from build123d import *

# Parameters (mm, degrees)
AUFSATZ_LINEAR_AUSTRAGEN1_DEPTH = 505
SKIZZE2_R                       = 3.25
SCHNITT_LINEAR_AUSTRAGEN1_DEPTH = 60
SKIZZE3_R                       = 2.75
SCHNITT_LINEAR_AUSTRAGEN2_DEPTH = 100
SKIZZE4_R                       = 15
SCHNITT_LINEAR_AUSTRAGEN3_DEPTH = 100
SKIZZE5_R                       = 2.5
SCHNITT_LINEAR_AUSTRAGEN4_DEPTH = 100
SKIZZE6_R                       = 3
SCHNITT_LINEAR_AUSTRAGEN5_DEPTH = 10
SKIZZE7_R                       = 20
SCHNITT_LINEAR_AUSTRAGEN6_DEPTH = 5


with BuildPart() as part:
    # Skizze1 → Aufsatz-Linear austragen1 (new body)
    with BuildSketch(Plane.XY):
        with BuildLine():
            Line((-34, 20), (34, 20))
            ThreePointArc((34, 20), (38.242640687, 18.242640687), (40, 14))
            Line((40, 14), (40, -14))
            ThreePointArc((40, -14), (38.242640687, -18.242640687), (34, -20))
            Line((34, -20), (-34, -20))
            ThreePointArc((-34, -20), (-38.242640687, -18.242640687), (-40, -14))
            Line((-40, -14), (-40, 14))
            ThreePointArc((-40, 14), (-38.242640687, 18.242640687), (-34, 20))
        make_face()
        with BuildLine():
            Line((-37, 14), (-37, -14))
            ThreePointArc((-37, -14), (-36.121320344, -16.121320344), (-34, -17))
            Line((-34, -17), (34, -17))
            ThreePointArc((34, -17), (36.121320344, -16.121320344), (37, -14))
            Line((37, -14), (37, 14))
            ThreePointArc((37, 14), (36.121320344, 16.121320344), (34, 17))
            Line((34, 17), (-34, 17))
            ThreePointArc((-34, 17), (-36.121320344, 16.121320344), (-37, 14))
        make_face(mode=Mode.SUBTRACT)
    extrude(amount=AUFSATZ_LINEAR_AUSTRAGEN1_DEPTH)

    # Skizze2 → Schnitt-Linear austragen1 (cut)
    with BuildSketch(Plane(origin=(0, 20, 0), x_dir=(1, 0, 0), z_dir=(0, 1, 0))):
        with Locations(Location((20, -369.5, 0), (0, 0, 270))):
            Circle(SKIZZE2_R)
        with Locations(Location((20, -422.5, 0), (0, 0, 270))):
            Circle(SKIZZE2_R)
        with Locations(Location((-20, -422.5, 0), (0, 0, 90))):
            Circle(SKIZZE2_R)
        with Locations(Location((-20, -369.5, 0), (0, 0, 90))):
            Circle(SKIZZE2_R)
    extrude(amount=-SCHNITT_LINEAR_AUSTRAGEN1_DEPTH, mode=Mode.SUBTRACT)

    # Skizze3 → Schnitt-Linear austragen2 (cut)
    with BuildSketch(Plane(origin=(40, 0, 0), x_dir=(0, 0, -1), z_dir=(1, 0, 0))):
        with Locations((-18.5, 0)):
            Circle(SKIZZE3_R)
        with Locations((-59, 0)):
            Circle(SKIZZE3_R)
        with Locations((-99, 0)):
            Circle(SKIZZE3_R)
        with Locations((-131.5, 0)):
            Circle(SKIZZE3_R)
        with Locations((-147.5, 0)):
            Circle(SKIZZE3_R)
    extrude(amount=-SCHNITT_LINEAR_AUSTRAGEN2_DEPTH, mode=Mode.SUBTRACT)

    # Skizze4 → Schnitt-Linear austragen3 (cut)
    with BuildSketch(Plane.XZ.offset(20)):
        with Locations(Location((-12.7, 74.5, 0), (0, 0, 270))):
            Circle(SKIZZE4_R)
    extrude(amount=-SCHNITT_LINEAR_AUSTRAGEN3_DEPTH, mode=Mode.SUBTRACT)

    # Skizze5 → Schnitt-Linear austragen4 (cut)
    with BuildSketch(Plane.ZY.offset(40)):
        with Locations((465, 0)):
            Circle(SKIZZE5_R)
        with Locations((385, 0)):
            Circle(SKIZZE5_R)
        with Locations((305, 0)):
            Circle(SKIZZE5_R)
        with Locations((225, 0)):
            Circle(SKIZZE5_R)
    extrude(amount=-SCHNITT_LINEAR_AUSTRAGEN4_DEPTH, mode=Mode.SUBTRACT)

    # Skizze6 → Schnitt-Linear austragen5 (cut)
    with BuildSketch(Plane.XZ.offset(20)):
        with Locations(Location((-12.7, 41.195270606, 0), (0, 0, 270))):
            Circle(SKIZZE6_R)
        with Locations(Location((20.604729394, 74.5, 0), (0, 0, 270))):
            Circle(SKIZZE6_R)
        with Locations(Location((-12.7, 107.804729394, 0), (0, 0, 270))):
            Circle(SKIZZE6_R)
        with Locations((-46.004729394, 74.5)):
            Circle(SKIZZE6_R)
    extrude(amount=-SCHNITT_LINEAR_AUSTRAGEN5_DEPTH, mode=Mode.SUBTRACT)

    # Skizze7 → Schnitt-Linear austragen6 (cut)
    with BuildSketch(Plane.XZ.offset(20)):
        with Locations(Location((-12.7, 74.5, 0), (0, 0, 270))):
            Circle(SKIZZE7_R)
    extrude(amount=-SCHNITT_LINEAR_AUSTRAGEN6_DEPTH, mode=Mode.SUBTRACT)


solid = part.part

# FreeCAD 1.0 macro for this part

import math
import FreeCAD as App
import Part
import Sketcher

V = App.Vector

doc = App.newDocument("Part")
body = doc.addObject("PartDesign::Body", "Body")

# Sketch on XY plane
sketch1 = body.newObject("Sketcher::SketchObject", "Sketch")
sketch1.AttachmentSupport = (doc.getObject("XY_Plane"), [""])
sketch1.MapMode = "FlatFace"
sketch1.addGeometry([
    Part.LineSegment(V(34, 20, 0), V(-34, 20, 0)),  # 0
    Part.ArcOfCircle(Part.Circle(V(-34, 14, 0), V(0, 0, 1), 6), math.radians(90), math.radians(180)),  # 1
    Part.LineSegment(V(-40, 14, 0), V(-40, -14, 0)),  # 2
    Part.ArcOfCircle(Part.Circle(V(-34, -14, 0), V(0, 0, 1), 6), math.radians(180), math.radians(270)),  # 3
    Part.LineSegment(V(-34, -20, 0), V(34, -20, 0)),  # 4
    Part.ArcOfCircle(Part.Circle(V(34, -14, 0), V(0, 0, 1), 6), math.radians(-90), math.radians(0)),  # 5
    Part.LineSegment(V(40, -14, 0), V(40, 14, 0)),  # 6
    Part.ArcOfCircle(Part.Circle(V(34, 14, 0), V(0, 0, 1), 6), math.radians(0), math.radians(90)),  # 7
    Part.ArcOfCircle(Part.Circle(V(-34, 14, 0), V(0, 0, 1), 3), math.radians(90), math.radians(180)),  # 8
    Part.LineSegment(V(-34, 17, 0), V(34, 17, 0)),  # 9
    Part.ArcOfCircle(Part.Circle(V(34, 14, 0), V(0, 0, 1), 3), math.radians(0), math.radians(90)),  # 10
    Part.LineSegment(V(37, 14, 0), V(37, -14, 0)),  # 11
    Part.ArcOfCircle(Part.Circle(V(34, -14, 0), V(0, 0, 1), 3), math.radians(-90), math.radians(0)),  # 12
    Part.LineSegment(V(34, -17, 0), V(-34, -17, 0)),  # 13
    Part.ArcOfCircle(Part.Circle(V(-34, -14, 0), V(0, 0, 1), 3), math.radians(180), math.radians(270)),  # 14
    Part.LineSegment(V(-37, -14, 0), V(-37, 14, 0)),  # 15
], False)
sketch1.addConstraint([
    Sketcher.Constraint("Tangent", 0, 2, 1, 1),
    Sketcher.Constraint("Tangent", 1, 2, 2, 1),
    Sketcher.Constraint("Tangent", 2, 2, 3, 1),
    Sketcher.Constraint("Tangent", 3, 2, 4, 1),
    Sketcher.Constraint("Tangent", 4, 2, 5, 1),
    Sketcher.Constraint("Tangent", 5, 2, 6, 1),
    Sketcher.Constraint("Tangent", 6, 2, 7, 1),
    Sketcher.Constraint("Tangent", 7, 2, 0, 1),
    Sketcher.Constraint("Tangent", 8, 1, 9, 1),
    Sketcher.Constraint("Tangent", 9, 2, 10, 2),
    Sketcher.Constraint("Tangent", 10, 1, 11, 1),
    Sketcher.Constraint("Tangent", 11, 2, 12, 2),
    Sketcher.Constraint("Tangent", 12, 1, 13, 1),
    Sketcher.Constraint("Tangent", 13, 2, 14, 2),
    Sketcher.Constraint("Tangent", 14, 1, 15, 1),
    Sketcher.Constraint("Tangent", 15, 2, 8, 2),
    Sketcher.Constraint("Horizontal", 0),
    Sketcher.Constraint("Vertical", 2),
    Sketcher.Constraint("Horizontal", 4),
    Sketcher.Constraint("Vertical", 6),
    Sketcher.Constraint("Horizontal", 9),
    Sketcher.Constraint("Vertical", 11),
    Sketcher.Constraint("Horizontal", 13),
    Sketcher.Constraint("Vertical", 15),
    Sketcher.Constraint("Coincident", 8, 3, 1, 3),
    Sketcher.Constraint("Coincident", 10, 3, 7, 3),
    Sketcher.Constraint("Coincident", 12, 3, 5, 3),
    Sketcher.Constraint("Equal", 1, 3),
    Sketcher.Constraint("Equal", 3, 5),
    Sketcher.Constraint("Equal", 5, 7),
    Sketcher.Constraint("Equal", 12, 14),
    Sketcher.Constraint("Symmetric", 1, 3, 5, 3, -1, 1),
    Sketcher.Constraint("Radius", 1, 6.0),
    Sketcher.Constraint("Radius", 8, 3.0),
    Sketcher.Constraint("DistanceX", 0, 2, 0, 1, 68.0),
    Sketcher.Constraint("DistanceY", 2, 2, 2, 1, 28.0),
])
pad1 = body.newObject("PartDesign::Pad", "Pad")
pad1.Profile = sketch1
pad1.Length = 505

# Sketch on XZ plane
sketch2 = body.newObject("Sketcher::SketchObject", "Sketch001")
sketch2.AttachmentSupport = (doc.getObject("XZ_Plane"), [""])
sketch2.MapMode = "FlatFace"
sketch2.AttachmentOffset = App.Placement(V(0, 0, -20), App.Rotation())
sketch2.addGeometry([
    Part.Circle(V(20, 369.5, 0), V(0, 0, 1), 3.2),
    Part.Circle(V(20, 422.5, 0), V(0, 0, 1), 3.2),
    Part.Circle(V(-20, 422.5, 0), V(0, 0, 1), 3.2),
    Part.Circle(V(-20, 369.5, 0), V(0, 0, 1), 3.2),
], False)
sketch2.addConstraint([
    Sketcher.Constraint("Equal", 0, 1),
    Sketcher.Constraint("Equal", 1, 2),
    Sketcher.Constraint("Equal", 2, 3),
    Sketcher.Constraint("Symmetric", 1, 3, 2, 3, -2),
    Sketcher.Constraint("Symmetric", 0, 3, 3, 3, -2),
    Sketcher.Constraint("Vertical", 0, 3, 1, 3),
    Sketcher.Constraint("Diameter", 0, 6.5),
    Sketcher.Constraint("DistanceX", -1, 1, 0, 3, 20.0),
    Sketcher.Constraint("DistanceY", 0, 3, 1, 3, 53.0),
    Sketcher.Constraint("DistanceY", -1, 1, 0, 3, 369.5),
])
pocket1 = body.newObject("PartDesign::Pocket", "Pocket")
pocket1.Profile = sketch2
pocket1.Length = 60
pocket1.Reversed = True

# Sketch on YZ plane
sketch3 = body.newObject("Sketcher::SketchObject", "Sketch002")
sketch3.AttachmentSupport = (doc.getObject("YZ_Plane"), [""])
sketch3.MapMode = "FlatFace"
sketch3.AttachmentOffset = App.Placement(V(0, 0, 40), App.Rotation())
sketch3.addGeometry([
    Part.Circle(V(0, 18.5, 0), V(0, 0, 1), 2.8),  # 0
    Part.Circle(V(0, 59, 0), V(0, 0, 1), 2.8),  # 1
    Part.Circle(V(0, 99, 0), V(0, 0, 1), 2.8),  # 2
    Part.Circle(V(0, 131.5, 0), V(0, 0, 1), 2.8),  # 3
    Part.Circle(V(0, 147.5, 0), V(0, 0, 1), 2.8),  # 4
], False)
sketch3.addConstraint([
    Sketcher.Constraint("Equal", 0, 1),
    Sketcher.Constraint("Equal", 1, 2),
    Sketcher.Constraint("Equal", 2, 3),
    Sketcher.Constraint("Equal", 3, 4),
    Sketcher.Constraint("PointOnObject", 0, 3, -2),
    Sketcher.Constraint("PointOnObject", 1, 3, -2),
    Sketcher.Constraint("PointOnObject", 2, 3, -2),
    Sketcher.Constraint("PointOnObject", 3, 3, -2),
    Sketcher.Constraint("PointOnObject", 4, 3, -2),
    Sketcher.Constraint("Diameter", 0, 5.5),
    Sketcher.Constraint("DistanceY", -1, 1, 1, 3, 59.0),
    Sketcher.Constraint("DistanceY", -1, 1, 2, 3, 99.0),
    Sketcher.Constraint("DistanceY", 0, 3, 3, 3, 113.0),
    Sketcher.Constraint("DistanceY", 3, 3, 4, 3, 16.0),
    Sketcher.Constraint("DistanceY", -1, 1, 0, 3, 18.5),
])
pocket2 = body.newObject("PartDesign::Pocket", "Pocket001")
pocket2.Profile = sketch3
pocket2.Length = 100

# Sketch on XZ plane
sketch4 = body.newObject("Sketcher::SketchObject", "Sketch003")
sketch4.AttachmentSupport = (doc.getObject("XZ_Plane"), [""])
sketch4.MapMode = "FlatFace"
sketch4.AttachmentOffset = App.Placement(V(0, 0, 20), App.Rotation())
sketch4.addGeometry(Part.Circle(V(-13, 74, 0), V(0, 0, 1), 15), False)
sketch4.addConstraint([
    Sketcher.Constraint("Diameter", 0, 30.0),
    Sketcher.Constraint("DistanceX", 0, 3, -1, 1, 12.7),
    Sketcher.Constraint("DistanceY", -1, 1, 0, 3, 74.5),
])
pocket3 = body.newObject("PartDesign::Pocket", "Pocket002")
pocket3.Profile = sketch4
pocket3.Length = 100

# Sketch on YZ plane
sketch5 = body.newObject("Sketcher::SketchObject", "Sketch004")
sketch5.AttachmentSupport = (doc.getObject("YZ_Plane"), [""])
sketch5.MapMode = "FlatFace"
sketch5.AttachmentOffset = App.Placement(V(0, 0, -40), App.Rotation())
sketch5.addGeometry([
    Part.Circle(V(0, 465, 0), V(0, 0, 1), 2.5),
    Part.Circle(V(0, 385, 0), V(0, 0, 1), 2.5),
    Part.Circle(V(0, 305, 0), V(0, 0, 1), 2.5),
    Part.Circle(V(0, 225, 0), V(0, 0, 1), 2.5),
], False)
sketch5.addConstraint([
    Sketcher.Constraint("Equal", 0, 1),
    Sketcher.Constraint("Equal", 1, 2),
    Sketcher.Constraint("Equal", 2, 3),
    Sketcher.Constraint("PointOnObject", 0, 3, -2),
    Sketcher.Constraint("PointOnObject", 1, 3, -2),
    Sketcher.Constraint("PointOnObject", 2, 3, -2),
    Sketcher.Constraint("PointOnObject", 3, 3, -2),
    Sketcher.Constraint("Diameter", 0, 5.0),
    Sketcher.Constraint("DistanceY", -1, 1, 0, 3, 465.0),
    Sketcher.Constraint("DistanceY", -1, 1, 1, 3, 385.0),
    Sketcher.Constraint("DistanceY", -1, 1, 2, 3, 305.0),
    Sketcher.Constraint("DistanceY", -1, 1, 3, 3, 225.0),
])
pocket4 = body.newObject("PartDesign::Pocket", "Pocket003")
pocket4.Profile = sketch5
pocket4.Length = 100
pocket4.Reversed = True

# Sketch on XZ plane
sketch6 = body.newObject("Sketcher::SketchObject", "Sketch005")
sketch6.AttachmentSupport = (doc.getObject("XZ_Plane"), [""])
sketch6.MapMode = "FlatFace"
sketch6.AttachmentOffset = App.Placement(V(0, 0, 20), App.Rotation())
sketch6.addGeometry([
    Part.Circle(V(-12.7, 41.2, 0), V(0, 0, 1), 3),
    Part.Circle(V(20.6, 74.5, 0), V(0, 0, 1), 3),
    Part.Circle(V(-12.7, 107.8, 0), V(0, 0, 1), 3),
    Part.Circle(V(-46, 74.5, 0), V(0, 0, 1), 3),
], False)
sketch6.addConstraint([
    Sketcher.Constraint("Equal", 0, 1),
    Sketcher.Constraint("Equal", 1, 2),
    Sketcher.Constraint("Equal", 2, 3),
    Sketcher.Constraint("Horizontal", 1, 3, 3, 3),
    Sketcher.Constraint("Vertical", 0, 3, 2, 3),
    Sketcher.Constraint("Diameter", 0, 6.0),
    Sketcher.Constraint("DistanceX", 0, 3, -1, 1, 12.7),
    Sketcher.Constraint("DistanceY", -1, 1, 1, 3, 74.5),
    Sketcher.Constraint("DistanceY", -1, 1, 0, 3, 41.195271),
    Sketcher.Constraint("DistanceX", -1, 1, 1, 3, 20.604729),
    Sketcher.Constraint("DistanceY", -1, 1, 2, 3, 107.804729),
    Sketcher.Constraint("DistanceX", 3, 3, -1, 1, 46.004729),
])
pocket5 = body.newObject("PartDesign::Pocket", "Pocket004")
pocket5.Profile = sketch6
pocket5.Length = 10

# Sketch on XZ plane
sketch7 = body.newObject("Sketcher::SketchObject", "Sketch006")
sketch7.AttachmentSupport = (doc.getObject("XZ_Plane"), [""])
sketch7.MapMode = "FlatFace"
sketch7.AttachmentOffset = App.Placement(V(0, 0, 20), App.Rotation())
sketch7.addGeometry(Part.Circle(V(-13, 74, 0), V(0, 0, 1), 20), False)
sketch7.addConstraint([
    Sketcher.Constraint("Diameter", 0, 40.0),
    Sketcher.Constraint("DistanceX", 0, 3, -1, 1, 12.7),
    Sketcher.Constraint("DistanceY", -1, 1, 0, 3, 74.5),
])
pocket6 = body.newObject("PartDesign::Pocket", "Pocket005")
pocket6.Profile = sketch7
pocket6.Length = 5

doc.recompute()
